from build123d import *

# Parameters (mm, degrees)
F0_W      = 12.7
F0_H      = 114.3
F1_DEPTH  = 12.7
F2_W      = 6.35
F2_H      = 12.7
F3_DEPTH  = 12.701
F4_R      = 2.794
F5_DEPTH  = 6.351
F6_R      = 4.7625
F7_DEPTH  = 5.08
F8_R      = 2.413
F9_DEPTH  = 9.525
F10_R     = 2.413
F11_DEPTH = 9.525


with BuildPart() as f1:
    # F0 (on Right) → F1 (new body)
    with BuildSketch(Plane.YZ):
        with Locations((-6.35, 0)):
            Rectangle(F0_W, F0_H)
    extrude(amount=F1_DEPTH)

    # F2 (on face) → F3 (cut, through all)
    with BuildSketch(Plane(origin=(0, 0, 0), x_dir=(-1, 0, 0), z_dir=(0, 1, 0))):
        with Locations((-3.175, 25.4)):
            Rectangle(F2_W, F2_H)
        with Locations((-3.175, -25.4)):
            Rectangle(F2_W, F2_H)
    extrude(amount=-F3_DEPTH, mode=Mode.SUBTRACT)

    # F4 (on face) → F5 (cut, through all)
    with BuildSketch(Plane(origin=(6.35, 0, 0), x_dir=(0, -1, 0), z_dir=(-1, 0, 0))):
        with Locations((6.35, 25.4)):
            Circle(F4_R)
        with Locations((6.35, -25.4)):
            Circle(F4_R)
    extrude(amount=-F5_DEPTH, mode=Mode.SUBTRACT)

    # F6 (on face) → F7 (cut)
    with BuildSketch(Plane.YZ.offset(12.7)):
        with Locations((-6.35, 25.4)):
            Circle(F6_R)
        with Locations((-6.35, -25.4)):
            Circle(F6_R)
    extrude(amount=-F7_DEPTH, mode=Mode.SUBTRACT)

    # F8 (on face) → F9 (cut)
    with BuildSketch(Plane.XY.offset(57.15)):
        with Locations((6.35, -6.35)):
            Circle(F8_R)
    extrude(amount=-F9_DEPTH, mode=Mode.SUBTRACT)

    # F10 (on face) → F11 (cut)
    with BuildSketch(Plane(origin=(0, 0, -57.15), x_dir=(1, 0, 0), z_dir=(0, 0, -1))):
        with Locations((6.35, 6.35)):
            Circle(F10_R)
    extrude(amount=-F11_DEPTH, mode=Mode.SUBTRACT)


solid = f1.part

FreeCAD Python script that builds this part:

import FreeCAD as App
import Part
import Sketcher

V = App.Vector
Q = App.Units.Quantity


def add_polygon(sketch, points):
    """Adds a closed chain of lines whose ends are joined by coincident constraints."""
    first, n = sketch.GeometryCount, len(points)
    for a, b in zip(points, points[1:] + points[:1]):
        sketch.addGeometry(Part.LineSegment(App.Vector(*a, 0), App.Vector(*b, 0)), False)
    for i in range(n):
        sketch.addConstraint(Sketcher.Constraint("Coincident", first + i, 2, first + (i + 1) % n, 1))

doc = App.newDocument("Part")
body = doc.addObject("PartDesign::Body", "Body")

sketch1 = body.newObject("Sketcher::SketchObject", "Sketch")
sketch1.AttachmentSupport = (doc.getObject("YZ_Plane"), [""])
sketch1.MapMode = "FlatFace"
add_polygon(sketch1, [(-13, 57), (-13, -57), (0, -57), (0, 57)])
sketch1.addConstraint([
    Sketcher.Constraint("Vertical", 0),
    Sketcher.Constraint("Horizontal", 1),
    Sketcher.Constraint("Vertical", 2),
    Sketcher.Constraint("Horizontal", 3),
    Sketcher.Constraint("Symmetric", 1, 2, 2, 2, -1, 1),
    Sketcher.Constraint("DistanceX", 1, 1, 1, 2, Q("0.5 in")),
    Sketcher.Constraint("DistanceY", 0, 2, 0, 1, Q("4.5 in")),
])
pad1 = body.newObject("PartDesign::Pad", "Pad")
pad1.Profile = sketch1
pad1.Length = Q("0.5 in")

sketch2 = body.newObject("Sketcher::SketchObject", "Sketch001")
sketch2.AttachmentSupport = (doc.getObject("XZ_Plane"), [""])
sketch2.MapMode = "FlatFace"
add_polygon(sketch2, [(6, 32), (6, 19), (0, 19), (0, 32)])
add_polygon(sketch2, [(6, -19), (6, -32), (0, -32), (0, -19)])
sketch2.addConstraint([
    Sketcher.Constraint("Vertical", 0),
    Sketcher.Constraint("Horizontal", 1),
    Sketcher.Constraint("Vertical", 2),
    Sketcher.Constraint("Horizontal", 3),
    Sketcher.Constraint("Vertical", 4),
    Sketcher.Constraint("Horizontal", 5),
    Sketcher.Constraint("Vertical", 6),
    Sketcher.Constraint("Horizontal", 7),
    Sketcher.Constraint("Symmetric", 2, 2, 5, 2, -1, 1),
    Sketcher.Constraint("Symmetric", 1, 2, 6, 2, -1),
    Sketcher.Constraint("Vertical", 3, 2, 4, 2),
    Sketcher.Constraint("DistanceY", 0, 2, 0, 1, Q("0.5 in")),
    Sketcher.Constraint("DistanceY", 4, 2, 0, 2, Q("2 in")),
    Sketcher.Constraint("DistanceX", 1, 2, 1, 1, Q("0.25 in")),
])
pocket1 = body.newObject("PartDesign::Pocket", "Pocket")
pocket1.Profile = sketch2
pocket1.Type = "ThroughAll"
pocket1.Reversed = True

sketch3 = body.newObject("Sketcher::SketchObject", "Sketch002")
sketch3.AttachmentSupport = (doc.getObject("YZ_Plane"), [""])
sketch3.MapMode = "FlatFace"
sketch3.AttachmentOffset = App.Placement(V(0, 0, 0.25 * 25.4), App.Rotation())
sketch3.addGeometry([
    Part.Circle(V(-6.3, 25.4, 0), V(0, 0, 1), 2.8),
    Part.Circle(V(-6.3, -25.4, 0), V(0, 0, 1), 2.8),
], False)
sketch3.addConstraint([
    Sketcher.Constraint("Equal", 0, 1),
    Sketcher.Constraint("Symmetric", 0, 3, 1, 3, -1),
    Sketcher.Constraint("Diameter", 0, Q("0.22 in")),
    Sketcher.Constraint("DistanceY", -1, 1, 0, 3, Q("1 in")),
    Sketcher.Constraint("DistanceX", 0, 3, -1, 1, Q("0.25 in")),
])
pocket2 = body.newObject("PartDesign::Pocket", "Pocket001")
pocket2.Profile = sketch3
pocket2.Type = "ThroughAll"
pocket2.Reversed = True

sketch4 = body.newObject("Sketcher::SketchObject", "Sketch003")
sketch4.AttachmentSupport = (doc.getObject("YZ_Plane"), [""])
sketch4.MapMode = "FlatFace"
sketch4.AttachmentOffset = App.Placement(V(0, 0, 0.5 * 25.4), App.Rotation())
sketch4.addGeometry([
    Part.Circle(V(-6.3, 25.4, 0), V(0, 0, 1), 4.8),
    Part.Circle(V(-6.3, -25.4, 0), V(0, 0, 1), 4.8),
], False)
sketch4.addConstraint([
    Sketcher.Constraint("Equal", 0, 1),
    Sketcher.Constraint("Symmetric", 0, 3, 1, 3, -1),
    Sketcher.Constraint("Diameter", 0, Q("0.375 in")),
    Sketcher.Constraint("DistanceY", -1, 1, 0, 3, Q("1 in")),
    Sketcher.Constraint("DistanceX", 0, 3, -1, 1, Q("0.25 in")),
])
pocket3 = body.newObject("PartDesign::Pocket", "Pocket002")
pocket3.Profile = sketch4
pocket3.Length = Q("0.2 in")

sketch5 = body.newObject("Sketcher::SketchObject", "Sketch004")
sketch5.AttachmentSupport = (doc.getObject("XY_Plane"), [""])
sketch5.MapMode = "FlatFace"
sketch5.AttachmentOffset = App.Placement(V(0, 0, 2.25 * 25.4), App.Rotation())
sketch5.addGeometry(Part.Circle(V(6.3, -6.3, 0), V(0, 0, 1), 2.4), False)
sketch5.addConstraint([
    Sketcher.Constraint("Diameter", 0, Q("0.19 in")),
    Sketcher.Constraint("DistanceX", -1, 1, 0, 3, Q("0.25 in")),
    Sketcher.Constraint("DistanceY", 0, 3, -1, 1, Q("0.25 in")),
])
pocket4 = body.newObject("PartDesign::Pocket", "Pocket003")
pocket4.Profile = sketch5
pocket4.Length = Q("0.375 in")

sketch6 = body.newObject("Sketcher::SketchObject", "Sketch005")
sketch6.AttachmentSupport = (doc.getObject("XY_Plane"), [""])
sketch6.MapMode = "FlatFace"
sketch6.AttachmentOffset = App.Placement(V(0, 0, -2.25 * 25.4), App.Rotation())
sketch6.addGeometry(Part.Circle(V(6.3, -6.3, 0), V(0, 0, 1), 2.4), False)
sketch6.addConstraint([
    Sketcher.Constraint("Diameter", 0, Q("0.19 in")),
    Sketcher.Constraint("DistanceX", -1, 1, 0, 3, Q("0.25 in")),
    Sketcher.Constraint("DistanceY", 0, 3, -1, 1, Q("0.25 in")),
])
pocket5 = body.newObject("PartDesign::Pocket", "Pocket004")
pocket5.Profile = sketch6
pocket5.Length = Q("0.375 in")
pocket5.Reversed = True

doc.recompute()
